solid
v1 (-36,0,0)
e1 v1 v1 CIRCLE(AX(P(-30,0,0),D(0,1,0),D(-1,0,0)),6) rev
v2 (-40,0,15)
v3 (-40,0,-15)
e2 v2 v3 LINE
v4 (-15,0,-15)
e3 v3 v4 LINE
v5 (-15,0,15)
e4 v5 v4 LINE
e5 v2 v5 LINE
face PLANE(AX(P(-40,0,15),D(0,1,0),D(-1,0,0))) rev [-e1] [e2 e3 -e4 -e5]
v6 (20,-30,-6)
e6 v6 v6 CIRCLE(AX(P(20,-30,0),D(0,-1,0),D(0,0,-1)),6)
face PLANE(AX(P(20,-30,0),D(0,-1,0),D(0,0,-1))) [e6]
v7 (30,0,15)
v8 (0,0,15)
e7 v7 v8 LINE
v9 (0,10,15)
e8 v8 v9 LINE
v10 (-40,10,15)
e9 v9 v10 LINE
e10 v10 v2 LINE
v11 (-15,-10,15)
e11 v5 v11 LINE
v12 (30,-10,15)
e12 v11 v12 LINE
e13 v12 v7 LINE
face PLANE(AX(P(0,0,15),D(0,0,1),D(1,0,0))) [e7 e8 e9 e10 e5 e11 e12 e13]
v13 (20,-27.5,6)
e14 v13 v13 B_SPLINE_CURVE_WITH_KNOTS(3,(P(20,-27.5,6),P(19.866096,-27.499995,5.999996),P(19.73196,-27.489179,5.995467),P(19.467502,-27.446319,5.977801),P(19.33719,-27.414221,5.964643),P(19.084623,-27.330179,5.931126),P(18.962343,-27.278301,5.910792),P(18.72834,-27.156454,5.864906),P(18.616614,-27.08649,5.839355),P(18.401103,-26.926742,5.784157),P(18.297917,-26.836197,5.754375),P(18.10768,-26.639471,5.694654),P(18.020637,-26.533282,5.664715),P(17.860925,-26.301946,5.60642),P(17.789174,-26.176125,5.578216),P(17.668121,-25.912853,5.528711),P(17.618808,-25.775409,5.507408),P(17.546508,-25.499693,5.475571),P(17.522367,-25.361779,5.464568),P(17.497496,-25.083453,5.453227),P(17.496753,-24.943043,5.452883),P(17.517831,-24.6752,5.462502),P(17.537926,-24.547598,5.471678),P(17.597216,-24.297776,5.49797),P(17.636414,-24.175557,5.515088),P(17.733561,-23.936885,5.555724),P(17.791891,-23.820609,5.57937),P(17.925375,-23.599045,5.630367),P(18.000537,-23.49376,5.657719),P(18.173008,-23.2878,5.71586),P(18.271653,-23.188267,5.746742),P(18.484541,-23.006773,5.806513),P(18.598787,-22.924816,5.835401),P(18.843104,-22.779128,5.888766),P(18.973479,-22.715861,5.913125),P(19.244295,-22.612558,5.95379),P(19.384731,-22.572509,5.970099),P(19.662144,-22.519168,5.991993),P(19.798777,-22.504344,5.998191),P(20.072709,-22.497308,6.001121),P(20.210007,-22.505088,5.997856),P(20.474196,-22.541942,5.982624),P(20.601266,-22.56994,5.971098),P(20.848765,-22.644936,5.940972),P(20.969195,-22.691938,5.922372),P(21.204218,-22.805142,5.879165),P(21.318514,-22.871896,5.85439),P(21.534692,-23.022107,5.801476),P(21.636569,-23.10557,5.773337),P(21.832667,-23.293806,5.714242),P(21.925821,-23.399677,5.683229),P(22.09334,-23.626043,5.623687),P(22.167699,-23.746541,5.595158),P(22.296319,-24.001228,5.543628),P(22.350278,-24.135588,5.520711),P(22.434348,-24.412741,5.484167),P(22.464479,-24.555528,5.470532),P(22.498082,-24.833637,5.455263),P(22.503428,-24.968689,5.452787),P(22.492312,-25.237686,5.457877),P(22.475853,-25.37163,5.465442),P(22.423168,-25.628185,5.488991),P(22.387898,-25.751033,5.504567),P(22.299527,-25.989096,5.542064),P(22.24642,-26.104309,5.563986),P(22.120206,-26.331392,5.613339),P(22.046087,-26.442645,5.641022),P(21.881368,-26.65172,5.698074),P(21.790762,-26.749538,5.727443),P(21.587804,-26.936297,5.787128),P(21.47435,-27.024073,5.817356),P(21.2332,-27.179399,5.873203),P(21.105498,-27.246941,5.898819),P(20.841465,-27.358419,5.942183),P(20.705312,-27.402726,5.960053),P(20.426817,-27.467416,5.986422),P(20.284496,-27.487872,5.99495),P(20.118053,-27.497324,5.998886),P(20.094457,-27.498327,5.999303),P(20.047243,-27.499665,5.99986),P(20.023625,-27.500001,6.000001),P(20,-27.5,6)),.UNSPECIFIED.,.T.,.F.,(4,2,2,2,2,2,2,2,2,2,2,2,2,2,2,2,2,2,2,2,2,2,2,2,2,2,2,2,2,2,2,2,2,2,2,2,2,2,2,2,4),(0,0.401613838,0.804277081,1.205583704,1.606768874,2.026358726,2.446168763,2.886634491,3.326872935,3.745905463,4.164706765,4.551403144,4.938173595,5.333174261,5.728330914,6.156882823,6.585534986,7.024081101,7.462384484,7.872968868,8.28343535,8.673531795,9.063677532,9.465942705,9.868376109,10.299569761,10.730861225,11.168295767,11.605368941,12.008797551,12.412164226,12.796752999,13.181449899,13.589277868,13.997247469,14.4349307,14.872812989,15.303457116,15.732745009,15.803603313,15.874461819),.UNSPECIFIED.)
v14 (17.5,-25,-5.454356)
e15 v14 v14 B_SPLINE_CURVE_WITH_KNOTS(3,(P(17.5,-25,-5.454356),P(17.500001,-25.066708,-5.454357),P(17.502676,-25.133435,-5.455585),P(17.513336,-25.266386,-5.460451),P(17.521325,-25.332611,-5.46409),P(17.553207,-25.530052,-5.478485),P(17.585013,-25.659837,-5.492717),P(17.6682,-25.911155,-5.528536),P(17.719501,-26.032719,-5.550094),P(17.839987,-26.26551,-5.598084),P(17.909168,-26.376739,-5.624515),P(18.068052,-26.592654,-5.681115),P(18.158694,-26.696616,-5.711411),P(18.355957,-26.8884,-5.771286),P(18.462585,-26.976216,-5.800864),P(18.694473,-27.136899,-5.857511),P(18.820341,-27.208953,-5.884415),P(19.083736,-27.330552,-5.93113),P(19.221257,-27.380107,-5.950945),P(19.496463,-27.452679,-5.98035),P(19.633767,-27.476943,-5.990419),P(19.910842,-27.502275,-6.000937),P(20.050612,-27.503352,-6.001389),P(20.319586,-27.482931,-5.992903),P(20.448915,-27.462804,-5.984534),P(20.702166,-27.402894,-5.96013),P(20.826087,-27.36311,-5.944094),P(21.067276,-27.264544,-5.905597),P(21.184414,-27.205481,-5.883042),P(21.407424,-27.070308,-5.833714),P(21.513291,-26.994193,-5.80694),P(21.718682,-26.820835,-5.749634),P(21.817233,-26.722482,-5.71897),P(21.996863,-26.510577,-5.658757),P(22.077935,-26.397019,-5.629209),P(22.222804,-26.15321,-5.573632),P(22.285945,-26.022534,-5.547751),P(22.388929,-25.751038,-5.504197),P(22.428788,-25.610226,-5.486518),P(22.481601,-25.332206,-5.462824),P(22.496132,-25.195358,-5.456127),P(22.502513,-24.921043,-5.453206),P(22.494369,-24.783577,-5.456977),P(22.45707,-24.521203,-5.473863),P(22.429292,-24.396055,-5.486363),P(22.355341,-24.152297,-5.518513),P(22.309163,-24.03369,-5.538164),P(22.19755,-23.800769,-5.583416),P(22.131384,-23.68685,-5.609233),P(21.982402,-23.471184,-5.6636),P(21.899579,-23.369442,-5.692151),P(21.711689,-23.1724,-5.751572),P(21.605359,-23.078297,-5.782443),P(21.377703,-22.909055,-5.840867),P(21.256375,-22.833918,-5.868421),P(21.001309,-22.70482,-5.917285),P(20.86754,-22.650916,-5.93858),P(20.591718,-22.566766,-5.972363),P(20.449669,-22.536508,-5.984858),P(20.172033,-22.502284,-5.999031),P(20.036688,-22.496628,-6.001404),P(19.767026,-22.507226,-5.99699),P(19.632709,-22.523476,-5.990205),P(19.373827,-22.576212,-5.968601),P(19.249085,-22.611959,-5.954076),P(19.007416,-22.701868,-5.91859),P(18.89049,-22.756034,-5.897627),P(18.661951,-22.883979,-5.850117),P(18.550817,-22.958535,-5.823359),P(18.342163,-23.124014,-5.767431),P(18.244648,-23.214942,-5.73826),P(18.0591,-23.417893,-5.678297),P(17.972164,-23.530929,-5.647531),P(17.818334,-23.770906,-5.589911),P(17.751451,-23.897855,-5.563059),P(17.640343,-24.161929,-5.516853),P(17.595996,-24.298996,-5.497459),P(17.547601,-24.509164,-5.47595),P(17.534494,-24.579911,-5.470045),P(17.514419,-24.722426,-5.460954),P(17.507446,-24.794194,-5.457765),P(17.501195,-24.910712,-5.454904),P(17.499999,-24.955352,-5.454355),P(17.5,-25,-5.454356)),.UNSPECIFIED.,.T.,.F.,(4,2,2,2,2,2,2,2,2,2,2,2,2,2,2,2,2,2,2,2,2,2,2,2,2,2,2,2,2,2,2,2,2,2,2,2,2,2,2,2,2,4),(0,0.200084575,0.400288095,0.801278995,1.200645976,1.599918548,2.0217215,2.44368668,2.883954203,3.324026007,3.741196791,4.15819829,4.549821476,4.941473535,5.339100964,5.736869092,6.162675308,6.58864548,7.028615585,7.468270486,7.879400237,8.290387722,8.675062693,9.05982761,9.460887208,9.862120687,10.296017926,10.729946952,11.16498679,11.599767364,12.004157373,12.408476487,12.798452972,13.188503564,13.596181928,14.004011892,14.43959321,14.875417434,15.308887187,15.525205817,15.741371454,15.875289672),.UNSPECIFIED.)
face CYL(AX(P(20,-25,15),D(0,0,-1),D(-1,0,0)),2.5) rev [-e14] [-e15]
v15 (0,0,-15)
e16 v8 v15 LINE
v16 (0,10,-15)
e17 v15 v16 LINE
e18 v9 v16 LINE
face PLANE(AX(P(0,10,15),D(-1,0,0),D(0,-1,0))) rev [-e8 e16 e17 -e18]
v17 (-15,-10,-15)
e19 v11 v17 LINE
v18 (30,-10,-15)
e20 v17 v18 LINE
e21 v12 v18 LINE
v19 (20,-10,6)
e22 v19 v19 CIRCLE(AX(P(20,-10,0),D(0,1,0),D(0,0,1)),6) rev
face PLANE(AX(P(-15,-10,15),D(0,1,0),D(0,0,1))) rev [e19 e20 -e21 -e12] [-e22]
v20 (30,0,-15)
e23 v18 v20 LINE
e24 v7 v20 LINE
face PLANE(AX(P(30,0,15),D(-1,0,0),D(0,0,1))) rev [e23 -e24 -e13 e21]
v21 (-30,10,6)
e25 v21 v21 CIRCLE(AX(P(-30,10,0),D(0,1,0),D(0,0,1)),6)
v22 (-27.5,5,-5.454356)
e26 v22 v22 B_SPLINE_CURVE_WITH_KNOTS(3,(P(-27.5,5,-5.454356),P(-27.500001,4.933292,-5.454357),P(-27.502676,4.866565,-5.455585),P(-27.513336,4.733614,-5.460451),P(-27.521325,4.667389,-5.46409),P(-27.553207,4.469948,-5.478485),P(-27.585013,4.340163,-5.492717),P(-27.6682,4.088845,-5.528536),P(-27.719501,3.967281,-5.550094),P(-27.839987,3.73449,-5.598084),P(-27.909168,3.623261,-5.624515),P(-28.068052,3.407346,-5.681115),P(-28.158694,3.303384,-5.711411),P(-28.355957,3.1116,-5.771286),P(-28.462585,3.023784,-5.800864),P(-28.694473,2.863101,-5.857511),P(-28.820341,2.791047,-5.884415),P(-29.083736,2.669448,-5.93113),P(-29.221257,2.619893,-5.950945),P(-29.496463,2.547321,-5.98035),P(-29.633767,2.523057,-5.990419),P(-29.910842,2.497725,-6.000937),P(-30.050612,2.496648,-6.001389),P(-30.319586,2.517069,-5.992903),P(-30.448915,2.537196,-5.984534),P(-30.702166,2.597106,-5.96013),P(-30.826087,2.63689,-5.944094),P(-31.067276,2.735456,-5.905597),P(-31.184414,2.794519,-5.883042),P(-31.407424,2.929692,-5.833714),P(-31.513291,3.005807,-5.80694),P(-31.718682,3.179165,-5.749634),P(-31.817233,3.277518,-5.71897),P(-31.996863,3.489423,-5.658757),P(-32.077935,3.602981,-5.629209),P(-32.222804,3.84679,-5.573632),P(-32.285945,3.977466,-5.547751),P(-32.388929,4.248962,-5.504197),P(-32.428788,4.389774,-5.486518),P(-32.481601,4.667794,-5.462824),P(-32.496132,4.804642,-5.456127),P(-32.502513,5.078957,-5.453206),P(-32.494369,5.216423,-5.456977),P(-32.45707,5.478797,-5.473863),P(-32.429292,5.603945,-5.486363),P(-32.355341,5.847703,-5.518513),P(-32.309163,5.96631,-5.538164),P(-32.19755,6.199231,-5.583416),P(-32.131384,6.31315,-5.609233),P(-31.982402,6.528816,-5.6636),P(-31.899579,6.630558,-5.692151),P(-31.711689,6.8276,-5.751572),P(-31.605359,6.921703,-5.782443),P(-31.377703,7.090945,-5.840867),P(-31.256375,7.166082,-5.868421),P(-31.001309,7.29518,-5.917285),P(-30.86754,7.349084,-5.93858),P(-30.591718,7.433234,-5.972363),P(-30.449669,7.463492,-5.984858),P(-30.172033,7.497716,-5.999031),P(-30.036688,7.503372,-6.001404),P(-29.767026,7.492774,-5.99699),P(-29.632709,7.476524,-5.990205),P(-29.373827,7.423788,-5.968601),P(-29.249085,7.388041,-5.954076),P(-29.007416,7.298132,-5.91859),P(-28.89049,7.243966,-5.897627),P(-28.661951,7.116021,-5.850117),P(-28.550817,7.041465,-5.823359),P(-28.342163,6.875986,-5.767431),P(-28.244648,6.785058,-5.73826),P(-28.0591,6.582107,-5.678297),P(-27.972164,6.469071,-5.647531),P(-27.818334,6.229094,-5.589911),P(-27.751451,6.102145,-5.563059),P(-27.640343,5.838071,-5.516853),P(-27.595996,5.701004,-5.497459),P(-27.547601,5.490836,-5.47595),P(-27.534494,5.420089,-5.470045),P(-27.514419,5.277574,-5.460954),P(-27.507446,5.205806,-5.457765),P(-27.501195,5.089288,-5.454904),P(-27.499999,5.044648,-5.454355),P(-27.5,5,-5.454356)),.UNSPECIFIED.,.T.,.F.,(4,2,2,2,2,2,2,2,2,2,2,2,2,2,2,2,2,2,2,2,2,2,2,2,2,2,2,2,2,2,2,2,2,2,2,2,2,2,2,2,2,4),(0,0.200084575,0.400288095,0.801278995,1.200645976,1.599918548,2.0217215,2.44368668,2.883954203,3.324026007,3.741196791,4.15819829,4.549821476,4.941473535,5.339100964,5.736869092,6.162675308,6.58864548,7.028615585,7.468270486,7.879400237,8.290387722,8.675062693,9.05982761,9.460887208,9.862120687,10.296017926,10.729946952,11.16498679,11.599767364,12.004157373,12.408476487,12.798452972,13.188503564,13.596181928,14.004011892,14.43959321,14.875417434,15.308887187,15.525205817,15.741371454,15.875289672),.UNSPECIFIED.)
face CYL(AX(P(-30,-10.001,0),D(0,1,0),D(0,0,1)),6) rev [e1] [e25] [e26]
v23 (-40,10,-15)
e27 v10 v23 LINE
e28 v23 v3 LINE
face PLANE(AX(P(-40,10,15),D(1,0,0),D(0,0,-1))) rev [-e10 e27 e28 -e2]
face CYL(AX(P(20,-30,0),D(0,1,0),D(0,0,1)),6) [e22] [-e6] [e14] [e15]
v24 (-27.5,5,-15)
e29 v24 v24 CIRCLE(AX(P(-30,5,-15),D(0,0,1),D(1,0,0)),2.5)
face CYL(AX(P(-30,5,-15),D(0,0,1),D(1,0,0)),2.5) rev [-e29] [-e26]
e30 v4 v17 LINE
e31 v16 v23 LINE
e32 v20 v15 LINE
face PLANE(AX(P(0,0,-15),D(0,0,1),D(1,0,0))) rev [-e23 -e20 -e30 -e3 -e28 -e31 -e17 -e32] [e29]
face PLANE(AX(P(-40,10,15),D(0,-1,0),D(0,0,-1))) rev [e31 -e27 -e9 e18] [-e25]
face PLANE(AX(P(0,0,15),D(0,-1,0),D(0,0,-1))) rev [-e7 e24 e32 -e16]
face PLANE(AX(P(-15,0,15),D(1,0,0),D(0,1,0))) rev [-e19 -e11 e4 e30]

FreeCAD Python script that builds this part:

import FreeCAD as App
import Part
import Sketcher
Q = App.Units.Quantity


def add_polygon(sketch, points):
    """Adds a closed chain of lines whose ends are joined by coincident constraints."""
    first, n = sketch.GeometryCount, len(points)
    for a, b in zip(points, points[1:] + points[:1]):
        sketch.addGeometry(Part.LineSegment(App.Vector(*a, 0), App.Vector(*b, 0)), False)
    for i in range(n):
        sketch.addConstraint(Sketcher.Constraint("Coincident", first + i, 2, first + (i + 1) % n, 1))

doc = App.newDocument("Part")
body = doc.addObject("PartDesign::Body", "Body")

# Sketch on XY plane
sketch1 = doc.addObject("Sketcher::SketchObject", "Sketch")
body.addObject(sketch1)
sketch1.AttachmentSupport = (doc.XY_Plane, [""])
sketch1.MapMode = "FlatFace"
add_polygon(sketch1, [(0, 10), (-40, 10), (-40, 0), (-15, 0), (-15, -10), (30, -10), (30, 0), (0, 0)])  # lines 0-7
sketch1.addConstraint([
    Sketcher.Constraint("Horizontal", 0),
    Sketcher.Constraint("Vertical", 1),
    Sketcher.Constraint("Horizontal", 2),
    Sketcher.Constraint("Vertical", 3),
    Sketcher.Constraint("Horizontal", 4),
    Sketcher.Constraint("Vertical", 5),
    Sketcher.Constraint("Horizontal", 6),
    Sketcher.Constraint("Vertical", 7),
    Sketcher.Constraint("Coincident", 6, 2, -1, 1),
    Sketcher.Constraint("PointOnObject", 1, 2, -1),
    Sketcher.Constraint("Equal", 1, 3),
    Sketcher.Constraint("DistanceX", 0, 2, 0, 1, Q("40 mm")),
    Sketcher.Constraint("DistanceX", 2, 1, 2, 2, Q("25 mm")),
    Sketcher.Constraint("DistanceX", 4, 1, 4, 2, Q("45 mm")),
    Sketcher.Constraint("DistanceY", 1, 2, 1, 1, Q("10 mm")),
])
pad1 = doc.addObject("PartDesign::Pad", "Pad")
body.addObject(pad1)
pad1.Profile = sketch1
pad1.Length = 30
pad1.Midplane = True

# Sketch on XZ plane
sketch2 = doc.addObject("Sketcher::SketchObject", "Sketch001")
body.addObject(sketch2)
sketch2.AttachmentSupport = (doc.XZ_Plane, [""])
sketch2.MapMode = "FlatFace"
sketch2.AttachmentOffset = App.Placement(App.Vector(0, 0, -10), App.Rotation())
sketch2.addGeometry(Part.Circle(App.Vector(-30, 0, 0), App.Vector(0, 0, 1), 6), False)
sketch2.addConstraint([
    Sketcher.Constraint("PointOnObject", 0, 3, -1),
    Sketcher.Constraint("Diameter", 0, Q("12 mm")),
    Sketcher.Constraint("DistanceX", 0, 3, -1, 1, Q("30 mm")),
])
pocket1 = doc.addObject("PartDesign::Pocket", "Pocket")
body.addObject(pocket1)
pocket1.Profile = sketch2
pocket1.Type = "UpToFirst"
pocket1.Reversed = True

# Sketch on XZ plane
sketch3 = doc.addObject("Sketcher::SketchObject", "Sketch002")
body.addObject(sketch3)
sketch3.AttachmentSupport = (doc.XZ_Plane, [""])
sketch3.MapMode = "FlatFace"
sketch3.AttachmentOffset = App.Placement(App.Vector(0, 0, 10), App.Rotation())
sketch3.addGeometry(Part.Circle(App.Vector(20, 0, 0), App.Vector(0, 0, 1), 6), False)
sketch3.addConstraint([
    Sketcher.Constraint("PointOnObject", 0, 3, -1),
    Sketcher.Constraint("Diameter", 0, Q("12 mm")),
    Sketcher.Constraint("DistanceX", -1, 1, 0, 3, Q("20 mm")),
])
pad2 = doc.addObject("PartDesign::Pad", "Pad001")
body.addObject(pad2)
pad2.Profile = sketch3
pad2.Length = 20

# Sketch on XY plane
sketch4 = doc.addObject("Sketcher::SketchObject", "Sketch003")
body.addObject(sketch4)
sketch4.AttachmentSupport = (doc.XY_Plane, [""])
sketch4.MapMode = "FlatFace"
sketch4.addGeometry(Part.Circle(App.Vector(-30, 5, 0), App.Vector(0, 0, 1), 2.5), False)
sketch4.addConstraint([
    Sketcher.Constraint("Diameter", 0, Q("5 mm")),
    Sketcher.Constraint("DistanceX", 0, 3, -1, 1, Q("30 mm")),
    Sketcher.Constraint("DistanceY", -1, 1, 0, 3, Q("5 mm")),
])
pocket2 = doc.addObject("PartDesign::Pocket", "Pocket001")
body.addObject(pocket2)
pocket2.Profile = sketch4
pocket2.Type = "ThroughAll"

# Sketch on XY plane
sketch5 = doc.addObject("Sketcher::SketchObject", "Sketch004")
body.addObject(sketch5)
sketch5.AttachmentSupport = (doc.XY_Plane, [""])
sketch5.MapMode = "FlatFace"
sketch5.addGeometry(Part.Circle(App.Vector(20, -25, 0), App.Vector(0, 0, 1), 2.5), False)
sketch5.addConstraint([
    Sketcher.Constraint("Diameter", 0, Q("5 mm")),
    Sketcher.Constraint("DistanceX", -1, 1, 0, 3, Q("20 mm")),
    Sketcher.Constraint("DistanceY", 0, 3, -1, 1, Q("25 mm")),
])
pocket3 = doc.addObject("PartDesign::Pocket", "Pocket002")
body.addObject(pocket3)
pocket3.Profile = sketch5
pocket3.Type = "ThroughAll"
pocket3.Midplane = True

doc.recompute()
